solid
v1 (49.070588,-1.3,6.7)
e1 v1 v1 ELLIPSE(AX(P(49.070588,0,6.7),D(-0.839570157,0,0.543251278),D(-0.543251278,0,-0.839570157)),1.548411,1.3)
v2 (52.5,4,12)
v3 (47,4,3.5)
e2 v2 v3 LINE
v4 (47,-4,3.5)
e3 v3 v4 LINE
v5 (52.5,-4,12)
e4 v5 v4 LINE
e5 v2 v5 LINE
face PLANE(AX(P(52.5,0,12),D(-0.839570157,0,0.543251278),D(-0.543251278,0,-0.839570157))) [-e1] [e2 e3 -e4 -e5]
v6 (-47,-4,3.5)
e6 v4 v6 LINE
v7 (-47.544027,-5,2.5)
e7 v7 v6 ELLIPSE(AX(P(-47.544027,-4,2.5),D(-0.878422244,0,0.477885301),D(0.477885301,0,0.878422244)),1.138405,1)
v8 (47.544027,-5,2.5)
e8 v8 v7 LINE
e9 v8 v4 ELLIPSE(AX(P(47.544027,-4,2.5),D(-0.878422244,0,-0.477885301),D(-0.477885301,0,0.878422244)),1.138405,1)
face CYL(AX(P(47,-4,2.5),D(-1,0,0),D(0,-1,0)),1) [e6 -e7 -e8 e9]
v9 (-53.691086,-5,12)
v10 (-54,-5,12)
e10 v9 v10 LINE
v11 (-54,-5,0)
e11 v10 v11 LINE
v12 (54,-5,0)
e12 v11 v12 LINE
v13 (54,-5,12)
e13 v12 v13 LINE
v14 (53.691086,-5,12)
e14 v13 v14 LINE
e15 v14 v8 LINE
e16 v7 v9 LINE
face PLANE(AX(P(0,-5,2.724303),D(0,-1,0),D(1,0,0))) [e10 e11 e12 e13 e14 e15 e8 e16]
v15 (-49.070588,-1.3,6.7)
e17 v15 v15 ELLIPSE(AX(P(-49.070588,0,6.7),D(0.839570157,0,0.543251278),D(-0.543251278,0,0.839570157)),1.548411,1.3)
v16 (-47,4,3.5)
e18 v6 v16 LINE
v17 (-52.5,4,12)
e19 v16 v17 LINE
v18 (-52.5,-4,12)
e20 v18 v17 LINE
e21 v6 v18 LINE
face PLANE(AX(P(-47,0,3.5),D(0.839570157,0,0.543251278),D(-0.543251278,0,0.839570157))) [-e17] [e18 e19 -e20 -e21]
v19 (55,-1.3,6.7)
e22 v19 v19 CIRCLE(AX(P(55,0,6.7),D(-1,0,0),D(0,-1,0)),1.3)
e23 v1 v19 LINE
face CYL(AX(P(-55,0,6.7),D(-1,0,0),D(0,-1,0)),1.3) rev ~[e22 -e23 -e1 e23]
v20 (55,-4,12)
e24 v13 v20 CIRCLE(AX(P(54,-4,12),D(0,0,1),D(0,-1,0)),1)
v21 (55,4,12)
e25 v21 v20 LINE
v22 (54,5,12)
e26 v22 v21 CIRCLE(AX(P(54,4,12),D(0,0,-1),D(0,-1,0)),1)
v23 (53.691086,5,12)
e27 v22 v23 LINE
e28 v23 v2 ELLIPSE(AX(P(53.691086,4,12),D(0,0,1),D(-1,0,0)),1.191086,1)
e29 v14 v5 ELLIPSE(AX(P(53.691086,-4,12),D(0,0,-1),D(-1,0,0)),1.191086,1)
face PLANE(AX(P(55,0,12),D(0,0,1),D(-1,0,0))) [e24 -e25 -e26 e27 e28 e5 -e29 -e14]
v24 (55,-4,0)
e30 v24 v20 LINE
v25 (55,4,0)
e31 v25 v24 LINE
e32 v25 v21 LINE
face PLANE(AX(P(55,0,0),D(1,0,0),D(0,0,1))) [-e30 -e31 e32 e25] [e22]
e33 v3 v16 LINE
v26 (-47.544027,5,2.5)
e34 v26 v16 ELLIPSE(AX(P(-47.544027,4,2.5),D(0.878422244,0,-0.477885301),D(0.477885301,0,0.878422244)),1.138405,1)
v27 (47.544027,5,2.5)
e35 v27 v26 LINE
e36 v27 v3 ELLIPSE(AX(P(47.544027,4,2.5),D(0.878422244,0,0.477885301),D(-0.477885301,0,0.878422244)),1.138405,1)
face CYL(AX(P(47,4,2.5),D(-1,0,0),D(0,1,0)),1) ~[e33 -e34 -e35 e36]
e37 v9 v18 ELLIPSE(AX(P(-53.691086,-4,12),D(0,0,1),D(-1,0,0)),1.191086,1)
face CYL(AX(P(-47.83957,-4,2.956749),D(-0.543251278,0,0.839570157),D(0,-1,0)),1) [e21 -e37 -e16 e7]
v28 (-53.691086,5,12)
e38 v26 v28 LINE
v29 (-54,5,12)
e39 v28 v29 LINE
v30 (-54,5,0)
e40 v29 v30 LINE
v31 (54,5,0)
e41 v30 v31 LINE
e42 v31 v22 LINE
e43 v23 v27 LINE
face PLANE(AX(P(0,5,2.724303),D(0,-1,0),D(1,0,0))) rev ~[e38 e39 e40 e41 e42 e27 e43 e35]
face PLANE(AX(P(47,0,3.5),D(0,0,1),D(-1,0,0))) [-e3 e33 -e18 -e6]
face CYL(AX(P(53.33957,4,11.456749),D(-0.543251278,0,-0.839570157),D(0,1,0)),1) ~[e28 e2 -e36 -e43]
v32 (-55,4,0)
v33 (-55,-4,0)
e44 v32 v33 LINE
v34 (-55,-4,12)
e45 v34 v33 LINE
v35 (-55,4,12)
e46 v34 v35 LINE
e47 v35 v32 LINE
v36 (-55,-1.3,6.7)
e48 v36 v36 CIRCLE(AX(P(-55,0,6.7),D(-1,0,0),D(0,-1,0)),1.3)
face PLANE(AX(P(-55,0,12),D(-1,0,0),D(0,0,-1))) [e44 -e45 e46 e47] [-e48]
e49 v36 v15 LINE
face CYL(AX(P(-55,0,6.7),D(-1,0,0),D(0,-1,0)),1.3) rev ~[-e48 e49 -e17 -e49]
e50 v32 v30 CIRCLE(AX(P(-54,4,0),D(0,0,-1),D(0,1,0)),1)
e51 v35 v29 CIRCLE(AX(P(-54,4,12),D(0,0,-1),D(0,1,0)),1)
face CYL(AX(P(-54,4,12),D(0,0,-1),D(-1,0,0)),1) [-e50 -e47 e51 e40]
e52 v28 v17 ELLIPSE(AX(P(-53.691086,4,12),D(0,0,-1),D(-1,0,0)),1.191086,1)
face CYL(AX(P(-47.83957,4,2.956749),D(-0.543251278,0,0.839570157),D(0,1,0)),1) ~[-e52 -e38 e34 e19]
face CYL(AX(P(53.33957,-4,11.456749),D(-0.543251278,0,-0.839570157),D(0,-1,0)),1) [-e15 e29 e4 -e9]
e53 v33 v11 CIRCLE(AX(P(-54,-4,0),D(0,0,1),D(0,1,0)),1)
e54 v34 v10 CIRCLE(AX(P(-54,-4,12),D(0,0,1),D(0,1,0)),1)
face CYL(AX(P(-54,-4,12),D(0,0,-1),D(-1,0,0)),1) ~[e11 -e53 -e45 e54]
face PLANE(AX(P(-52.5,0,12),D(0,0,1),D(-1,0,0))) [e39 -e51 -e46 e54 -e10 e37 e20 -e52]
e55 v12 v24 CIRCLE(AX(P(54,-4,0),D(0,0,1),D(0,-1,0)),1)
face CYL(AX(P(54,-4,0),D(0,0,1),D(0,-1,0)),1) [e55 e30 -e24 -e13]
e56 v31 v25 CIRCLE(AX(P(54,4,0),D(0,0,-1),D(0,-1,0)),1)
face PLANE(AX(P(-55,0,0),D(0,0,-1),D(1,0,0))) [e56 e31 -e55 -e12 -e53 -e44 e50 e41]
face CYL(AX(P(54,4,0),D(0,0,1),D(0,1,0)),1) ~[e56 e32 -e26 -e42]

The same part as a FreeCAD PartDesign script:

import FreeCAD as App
import Part
import Sketcher
Q = App.Units.Quantity


def edges_at(feature, points):
    """Names of the edges that pass closest to the given points."""
    edges = feature.Shape.Edges
    near = lambda p: min(range(len(edges)), key=lambda i: edges[i].distToShape(Part.Vertex(*p))[0])
    return sorted({f"Edge{near(p) + 1}" for p in points})


def add_polygon(sketch, points):
    """Adds a closed chain of lines whose ends are joined by coincident constraints."""
    first, n = sketch.GeometryCount, len(points)
    for a, b in zip(points, points[1:] + points[:1]):
        sketch.addGeometry(Part.LineSegment(App.Vector(*a, 0), App.Vector(*b, 0)), False)
    for i in range(n):
        sketch.addConstraint(Sketcher.Constraint("Coincident", first + i, 2, first + (i + 1) % n, 1))

doc = App.newDocument("Part")
body = doc.addObject("PartDesign::Body", "Body")

# Sketch on XZ plane
sketch1 = body.newObject("Sketcher::SketchObject", "Sketch")
sketch1.AttachmentSupport = (doc.getObject("XZ_Plane"), [""])
sketch1.MapMode = "FlatFace"
add_polygon(sketch1, [(-55, 12), (-55, 0), (55, 0), (55, 12), (52.5, 12), (47, 3.5), (-47, 3.5), (-52.5, 12)])  # lines 0-7
sketch1.addConstraint(Sketcher.Constraint("Vertical", 0))
sketch1.addConstraint(Sketcher.Constraint("Horizontal", 1))
sketch1.addConstraint(Sketcher.Constraint("Vertical", 2))
sketch1.addConstraint(Sketcher.Constraint("Horizontal", 3))
sketch1.addConstraint(Sketcher.Constraint("Horizontal", 5))
sketch1.addConstraint(Sketcher.Constraint("Horizontal", 7))
sketch1.addConstraint(Sketcher.Constraint("Symmetric", 0, 2, 1, 2, -1, 1))
sketch1.addConstraint(Sketcher.Constraint("Symmetric", 3, 2, 6, 2, -2))
sketch1.addConstraint(Sketcher.Constraint("Equal", 4, 6))
sketch1.addConstraint(Sketcher.Constraint("DistanceX", 1, 1, 1, 2, Q("110 mm")))
sketch1.addConstraint(Sketcher.Constraint("DistanceX", 5, 2, 5, 1, Q("94 mm")))
sketch1.addConstraint(Sketcher.Constraint("DistanceY", 0, 2, 0, 1, Q("12 mm")))
sketch1.addConstraint(Sketcher.Constraint("DistanceX", 3, 2, 3, 1, Q("2.5 mm")))
sketch1.addConstraint(Sketcher.Constraint("DistanceY", -1, 1, 4, 2, Q("3.5 mm")))
pad1 = body.newObject("PartDesign::Pad", "Pad")
pad1.Profile = sketch1
pad1.Length = 10
pad1.Midplane = True

# Sketch on YZ plane
sketch2 = body.newObject("Sketcher::SketchObject", "Sketch001")
sketch2.AttachmentSupport = (doc.getObject("YZ_Plane"), [""])
sketch2.MapMode = "FlatFace"
sketch2.AttachmentOffset = App.Placement(App.Vector(0, 0, -55), App.Rotation())
sketch2.addGeometry(Part.Circle(App.Vector(0, 6.7, 0), App.Vector(0, 0, 1), 1.3), False)
sketch2.addConstraint(Sketcher.Constraint("PointOnObject", 0, 3, -2))
sketch2.addConstraint(Sketcher.Constraint("Diameter", 0, Q("2.6 mm")))
sketch2.addConstraint(Sketcher.Constraint("DistanceY", -1, 1, 0, 3, Q("6.7 mm")))
pocket1 = body.newObject("PartDesign::Pocket", "Pocket")
pocket1.Profile = sketch2
pocket1.Type = "ThroughAll"
pocket1.Reversed = True
doc.recompute()

fillet = body.newObject("PartDesign::Fillet", "Fillet")
fillet.Base = (pocket1, edges_at(pocket1, [
    (-49.75, 5, 7.75),
    (-49.75, -5, 7.75),
    (0, -5, 3.5),
    (0, 5, 3.5),
    (49.75, 5, 7.75),
    (49.75, -5, 7.75),
    (-55, -5, 6),
    (-55, 5, 6),
    (55, -5, 6),
    (55, 5, 6),
]))
fillet.Radius = 1

doc.recompute()
